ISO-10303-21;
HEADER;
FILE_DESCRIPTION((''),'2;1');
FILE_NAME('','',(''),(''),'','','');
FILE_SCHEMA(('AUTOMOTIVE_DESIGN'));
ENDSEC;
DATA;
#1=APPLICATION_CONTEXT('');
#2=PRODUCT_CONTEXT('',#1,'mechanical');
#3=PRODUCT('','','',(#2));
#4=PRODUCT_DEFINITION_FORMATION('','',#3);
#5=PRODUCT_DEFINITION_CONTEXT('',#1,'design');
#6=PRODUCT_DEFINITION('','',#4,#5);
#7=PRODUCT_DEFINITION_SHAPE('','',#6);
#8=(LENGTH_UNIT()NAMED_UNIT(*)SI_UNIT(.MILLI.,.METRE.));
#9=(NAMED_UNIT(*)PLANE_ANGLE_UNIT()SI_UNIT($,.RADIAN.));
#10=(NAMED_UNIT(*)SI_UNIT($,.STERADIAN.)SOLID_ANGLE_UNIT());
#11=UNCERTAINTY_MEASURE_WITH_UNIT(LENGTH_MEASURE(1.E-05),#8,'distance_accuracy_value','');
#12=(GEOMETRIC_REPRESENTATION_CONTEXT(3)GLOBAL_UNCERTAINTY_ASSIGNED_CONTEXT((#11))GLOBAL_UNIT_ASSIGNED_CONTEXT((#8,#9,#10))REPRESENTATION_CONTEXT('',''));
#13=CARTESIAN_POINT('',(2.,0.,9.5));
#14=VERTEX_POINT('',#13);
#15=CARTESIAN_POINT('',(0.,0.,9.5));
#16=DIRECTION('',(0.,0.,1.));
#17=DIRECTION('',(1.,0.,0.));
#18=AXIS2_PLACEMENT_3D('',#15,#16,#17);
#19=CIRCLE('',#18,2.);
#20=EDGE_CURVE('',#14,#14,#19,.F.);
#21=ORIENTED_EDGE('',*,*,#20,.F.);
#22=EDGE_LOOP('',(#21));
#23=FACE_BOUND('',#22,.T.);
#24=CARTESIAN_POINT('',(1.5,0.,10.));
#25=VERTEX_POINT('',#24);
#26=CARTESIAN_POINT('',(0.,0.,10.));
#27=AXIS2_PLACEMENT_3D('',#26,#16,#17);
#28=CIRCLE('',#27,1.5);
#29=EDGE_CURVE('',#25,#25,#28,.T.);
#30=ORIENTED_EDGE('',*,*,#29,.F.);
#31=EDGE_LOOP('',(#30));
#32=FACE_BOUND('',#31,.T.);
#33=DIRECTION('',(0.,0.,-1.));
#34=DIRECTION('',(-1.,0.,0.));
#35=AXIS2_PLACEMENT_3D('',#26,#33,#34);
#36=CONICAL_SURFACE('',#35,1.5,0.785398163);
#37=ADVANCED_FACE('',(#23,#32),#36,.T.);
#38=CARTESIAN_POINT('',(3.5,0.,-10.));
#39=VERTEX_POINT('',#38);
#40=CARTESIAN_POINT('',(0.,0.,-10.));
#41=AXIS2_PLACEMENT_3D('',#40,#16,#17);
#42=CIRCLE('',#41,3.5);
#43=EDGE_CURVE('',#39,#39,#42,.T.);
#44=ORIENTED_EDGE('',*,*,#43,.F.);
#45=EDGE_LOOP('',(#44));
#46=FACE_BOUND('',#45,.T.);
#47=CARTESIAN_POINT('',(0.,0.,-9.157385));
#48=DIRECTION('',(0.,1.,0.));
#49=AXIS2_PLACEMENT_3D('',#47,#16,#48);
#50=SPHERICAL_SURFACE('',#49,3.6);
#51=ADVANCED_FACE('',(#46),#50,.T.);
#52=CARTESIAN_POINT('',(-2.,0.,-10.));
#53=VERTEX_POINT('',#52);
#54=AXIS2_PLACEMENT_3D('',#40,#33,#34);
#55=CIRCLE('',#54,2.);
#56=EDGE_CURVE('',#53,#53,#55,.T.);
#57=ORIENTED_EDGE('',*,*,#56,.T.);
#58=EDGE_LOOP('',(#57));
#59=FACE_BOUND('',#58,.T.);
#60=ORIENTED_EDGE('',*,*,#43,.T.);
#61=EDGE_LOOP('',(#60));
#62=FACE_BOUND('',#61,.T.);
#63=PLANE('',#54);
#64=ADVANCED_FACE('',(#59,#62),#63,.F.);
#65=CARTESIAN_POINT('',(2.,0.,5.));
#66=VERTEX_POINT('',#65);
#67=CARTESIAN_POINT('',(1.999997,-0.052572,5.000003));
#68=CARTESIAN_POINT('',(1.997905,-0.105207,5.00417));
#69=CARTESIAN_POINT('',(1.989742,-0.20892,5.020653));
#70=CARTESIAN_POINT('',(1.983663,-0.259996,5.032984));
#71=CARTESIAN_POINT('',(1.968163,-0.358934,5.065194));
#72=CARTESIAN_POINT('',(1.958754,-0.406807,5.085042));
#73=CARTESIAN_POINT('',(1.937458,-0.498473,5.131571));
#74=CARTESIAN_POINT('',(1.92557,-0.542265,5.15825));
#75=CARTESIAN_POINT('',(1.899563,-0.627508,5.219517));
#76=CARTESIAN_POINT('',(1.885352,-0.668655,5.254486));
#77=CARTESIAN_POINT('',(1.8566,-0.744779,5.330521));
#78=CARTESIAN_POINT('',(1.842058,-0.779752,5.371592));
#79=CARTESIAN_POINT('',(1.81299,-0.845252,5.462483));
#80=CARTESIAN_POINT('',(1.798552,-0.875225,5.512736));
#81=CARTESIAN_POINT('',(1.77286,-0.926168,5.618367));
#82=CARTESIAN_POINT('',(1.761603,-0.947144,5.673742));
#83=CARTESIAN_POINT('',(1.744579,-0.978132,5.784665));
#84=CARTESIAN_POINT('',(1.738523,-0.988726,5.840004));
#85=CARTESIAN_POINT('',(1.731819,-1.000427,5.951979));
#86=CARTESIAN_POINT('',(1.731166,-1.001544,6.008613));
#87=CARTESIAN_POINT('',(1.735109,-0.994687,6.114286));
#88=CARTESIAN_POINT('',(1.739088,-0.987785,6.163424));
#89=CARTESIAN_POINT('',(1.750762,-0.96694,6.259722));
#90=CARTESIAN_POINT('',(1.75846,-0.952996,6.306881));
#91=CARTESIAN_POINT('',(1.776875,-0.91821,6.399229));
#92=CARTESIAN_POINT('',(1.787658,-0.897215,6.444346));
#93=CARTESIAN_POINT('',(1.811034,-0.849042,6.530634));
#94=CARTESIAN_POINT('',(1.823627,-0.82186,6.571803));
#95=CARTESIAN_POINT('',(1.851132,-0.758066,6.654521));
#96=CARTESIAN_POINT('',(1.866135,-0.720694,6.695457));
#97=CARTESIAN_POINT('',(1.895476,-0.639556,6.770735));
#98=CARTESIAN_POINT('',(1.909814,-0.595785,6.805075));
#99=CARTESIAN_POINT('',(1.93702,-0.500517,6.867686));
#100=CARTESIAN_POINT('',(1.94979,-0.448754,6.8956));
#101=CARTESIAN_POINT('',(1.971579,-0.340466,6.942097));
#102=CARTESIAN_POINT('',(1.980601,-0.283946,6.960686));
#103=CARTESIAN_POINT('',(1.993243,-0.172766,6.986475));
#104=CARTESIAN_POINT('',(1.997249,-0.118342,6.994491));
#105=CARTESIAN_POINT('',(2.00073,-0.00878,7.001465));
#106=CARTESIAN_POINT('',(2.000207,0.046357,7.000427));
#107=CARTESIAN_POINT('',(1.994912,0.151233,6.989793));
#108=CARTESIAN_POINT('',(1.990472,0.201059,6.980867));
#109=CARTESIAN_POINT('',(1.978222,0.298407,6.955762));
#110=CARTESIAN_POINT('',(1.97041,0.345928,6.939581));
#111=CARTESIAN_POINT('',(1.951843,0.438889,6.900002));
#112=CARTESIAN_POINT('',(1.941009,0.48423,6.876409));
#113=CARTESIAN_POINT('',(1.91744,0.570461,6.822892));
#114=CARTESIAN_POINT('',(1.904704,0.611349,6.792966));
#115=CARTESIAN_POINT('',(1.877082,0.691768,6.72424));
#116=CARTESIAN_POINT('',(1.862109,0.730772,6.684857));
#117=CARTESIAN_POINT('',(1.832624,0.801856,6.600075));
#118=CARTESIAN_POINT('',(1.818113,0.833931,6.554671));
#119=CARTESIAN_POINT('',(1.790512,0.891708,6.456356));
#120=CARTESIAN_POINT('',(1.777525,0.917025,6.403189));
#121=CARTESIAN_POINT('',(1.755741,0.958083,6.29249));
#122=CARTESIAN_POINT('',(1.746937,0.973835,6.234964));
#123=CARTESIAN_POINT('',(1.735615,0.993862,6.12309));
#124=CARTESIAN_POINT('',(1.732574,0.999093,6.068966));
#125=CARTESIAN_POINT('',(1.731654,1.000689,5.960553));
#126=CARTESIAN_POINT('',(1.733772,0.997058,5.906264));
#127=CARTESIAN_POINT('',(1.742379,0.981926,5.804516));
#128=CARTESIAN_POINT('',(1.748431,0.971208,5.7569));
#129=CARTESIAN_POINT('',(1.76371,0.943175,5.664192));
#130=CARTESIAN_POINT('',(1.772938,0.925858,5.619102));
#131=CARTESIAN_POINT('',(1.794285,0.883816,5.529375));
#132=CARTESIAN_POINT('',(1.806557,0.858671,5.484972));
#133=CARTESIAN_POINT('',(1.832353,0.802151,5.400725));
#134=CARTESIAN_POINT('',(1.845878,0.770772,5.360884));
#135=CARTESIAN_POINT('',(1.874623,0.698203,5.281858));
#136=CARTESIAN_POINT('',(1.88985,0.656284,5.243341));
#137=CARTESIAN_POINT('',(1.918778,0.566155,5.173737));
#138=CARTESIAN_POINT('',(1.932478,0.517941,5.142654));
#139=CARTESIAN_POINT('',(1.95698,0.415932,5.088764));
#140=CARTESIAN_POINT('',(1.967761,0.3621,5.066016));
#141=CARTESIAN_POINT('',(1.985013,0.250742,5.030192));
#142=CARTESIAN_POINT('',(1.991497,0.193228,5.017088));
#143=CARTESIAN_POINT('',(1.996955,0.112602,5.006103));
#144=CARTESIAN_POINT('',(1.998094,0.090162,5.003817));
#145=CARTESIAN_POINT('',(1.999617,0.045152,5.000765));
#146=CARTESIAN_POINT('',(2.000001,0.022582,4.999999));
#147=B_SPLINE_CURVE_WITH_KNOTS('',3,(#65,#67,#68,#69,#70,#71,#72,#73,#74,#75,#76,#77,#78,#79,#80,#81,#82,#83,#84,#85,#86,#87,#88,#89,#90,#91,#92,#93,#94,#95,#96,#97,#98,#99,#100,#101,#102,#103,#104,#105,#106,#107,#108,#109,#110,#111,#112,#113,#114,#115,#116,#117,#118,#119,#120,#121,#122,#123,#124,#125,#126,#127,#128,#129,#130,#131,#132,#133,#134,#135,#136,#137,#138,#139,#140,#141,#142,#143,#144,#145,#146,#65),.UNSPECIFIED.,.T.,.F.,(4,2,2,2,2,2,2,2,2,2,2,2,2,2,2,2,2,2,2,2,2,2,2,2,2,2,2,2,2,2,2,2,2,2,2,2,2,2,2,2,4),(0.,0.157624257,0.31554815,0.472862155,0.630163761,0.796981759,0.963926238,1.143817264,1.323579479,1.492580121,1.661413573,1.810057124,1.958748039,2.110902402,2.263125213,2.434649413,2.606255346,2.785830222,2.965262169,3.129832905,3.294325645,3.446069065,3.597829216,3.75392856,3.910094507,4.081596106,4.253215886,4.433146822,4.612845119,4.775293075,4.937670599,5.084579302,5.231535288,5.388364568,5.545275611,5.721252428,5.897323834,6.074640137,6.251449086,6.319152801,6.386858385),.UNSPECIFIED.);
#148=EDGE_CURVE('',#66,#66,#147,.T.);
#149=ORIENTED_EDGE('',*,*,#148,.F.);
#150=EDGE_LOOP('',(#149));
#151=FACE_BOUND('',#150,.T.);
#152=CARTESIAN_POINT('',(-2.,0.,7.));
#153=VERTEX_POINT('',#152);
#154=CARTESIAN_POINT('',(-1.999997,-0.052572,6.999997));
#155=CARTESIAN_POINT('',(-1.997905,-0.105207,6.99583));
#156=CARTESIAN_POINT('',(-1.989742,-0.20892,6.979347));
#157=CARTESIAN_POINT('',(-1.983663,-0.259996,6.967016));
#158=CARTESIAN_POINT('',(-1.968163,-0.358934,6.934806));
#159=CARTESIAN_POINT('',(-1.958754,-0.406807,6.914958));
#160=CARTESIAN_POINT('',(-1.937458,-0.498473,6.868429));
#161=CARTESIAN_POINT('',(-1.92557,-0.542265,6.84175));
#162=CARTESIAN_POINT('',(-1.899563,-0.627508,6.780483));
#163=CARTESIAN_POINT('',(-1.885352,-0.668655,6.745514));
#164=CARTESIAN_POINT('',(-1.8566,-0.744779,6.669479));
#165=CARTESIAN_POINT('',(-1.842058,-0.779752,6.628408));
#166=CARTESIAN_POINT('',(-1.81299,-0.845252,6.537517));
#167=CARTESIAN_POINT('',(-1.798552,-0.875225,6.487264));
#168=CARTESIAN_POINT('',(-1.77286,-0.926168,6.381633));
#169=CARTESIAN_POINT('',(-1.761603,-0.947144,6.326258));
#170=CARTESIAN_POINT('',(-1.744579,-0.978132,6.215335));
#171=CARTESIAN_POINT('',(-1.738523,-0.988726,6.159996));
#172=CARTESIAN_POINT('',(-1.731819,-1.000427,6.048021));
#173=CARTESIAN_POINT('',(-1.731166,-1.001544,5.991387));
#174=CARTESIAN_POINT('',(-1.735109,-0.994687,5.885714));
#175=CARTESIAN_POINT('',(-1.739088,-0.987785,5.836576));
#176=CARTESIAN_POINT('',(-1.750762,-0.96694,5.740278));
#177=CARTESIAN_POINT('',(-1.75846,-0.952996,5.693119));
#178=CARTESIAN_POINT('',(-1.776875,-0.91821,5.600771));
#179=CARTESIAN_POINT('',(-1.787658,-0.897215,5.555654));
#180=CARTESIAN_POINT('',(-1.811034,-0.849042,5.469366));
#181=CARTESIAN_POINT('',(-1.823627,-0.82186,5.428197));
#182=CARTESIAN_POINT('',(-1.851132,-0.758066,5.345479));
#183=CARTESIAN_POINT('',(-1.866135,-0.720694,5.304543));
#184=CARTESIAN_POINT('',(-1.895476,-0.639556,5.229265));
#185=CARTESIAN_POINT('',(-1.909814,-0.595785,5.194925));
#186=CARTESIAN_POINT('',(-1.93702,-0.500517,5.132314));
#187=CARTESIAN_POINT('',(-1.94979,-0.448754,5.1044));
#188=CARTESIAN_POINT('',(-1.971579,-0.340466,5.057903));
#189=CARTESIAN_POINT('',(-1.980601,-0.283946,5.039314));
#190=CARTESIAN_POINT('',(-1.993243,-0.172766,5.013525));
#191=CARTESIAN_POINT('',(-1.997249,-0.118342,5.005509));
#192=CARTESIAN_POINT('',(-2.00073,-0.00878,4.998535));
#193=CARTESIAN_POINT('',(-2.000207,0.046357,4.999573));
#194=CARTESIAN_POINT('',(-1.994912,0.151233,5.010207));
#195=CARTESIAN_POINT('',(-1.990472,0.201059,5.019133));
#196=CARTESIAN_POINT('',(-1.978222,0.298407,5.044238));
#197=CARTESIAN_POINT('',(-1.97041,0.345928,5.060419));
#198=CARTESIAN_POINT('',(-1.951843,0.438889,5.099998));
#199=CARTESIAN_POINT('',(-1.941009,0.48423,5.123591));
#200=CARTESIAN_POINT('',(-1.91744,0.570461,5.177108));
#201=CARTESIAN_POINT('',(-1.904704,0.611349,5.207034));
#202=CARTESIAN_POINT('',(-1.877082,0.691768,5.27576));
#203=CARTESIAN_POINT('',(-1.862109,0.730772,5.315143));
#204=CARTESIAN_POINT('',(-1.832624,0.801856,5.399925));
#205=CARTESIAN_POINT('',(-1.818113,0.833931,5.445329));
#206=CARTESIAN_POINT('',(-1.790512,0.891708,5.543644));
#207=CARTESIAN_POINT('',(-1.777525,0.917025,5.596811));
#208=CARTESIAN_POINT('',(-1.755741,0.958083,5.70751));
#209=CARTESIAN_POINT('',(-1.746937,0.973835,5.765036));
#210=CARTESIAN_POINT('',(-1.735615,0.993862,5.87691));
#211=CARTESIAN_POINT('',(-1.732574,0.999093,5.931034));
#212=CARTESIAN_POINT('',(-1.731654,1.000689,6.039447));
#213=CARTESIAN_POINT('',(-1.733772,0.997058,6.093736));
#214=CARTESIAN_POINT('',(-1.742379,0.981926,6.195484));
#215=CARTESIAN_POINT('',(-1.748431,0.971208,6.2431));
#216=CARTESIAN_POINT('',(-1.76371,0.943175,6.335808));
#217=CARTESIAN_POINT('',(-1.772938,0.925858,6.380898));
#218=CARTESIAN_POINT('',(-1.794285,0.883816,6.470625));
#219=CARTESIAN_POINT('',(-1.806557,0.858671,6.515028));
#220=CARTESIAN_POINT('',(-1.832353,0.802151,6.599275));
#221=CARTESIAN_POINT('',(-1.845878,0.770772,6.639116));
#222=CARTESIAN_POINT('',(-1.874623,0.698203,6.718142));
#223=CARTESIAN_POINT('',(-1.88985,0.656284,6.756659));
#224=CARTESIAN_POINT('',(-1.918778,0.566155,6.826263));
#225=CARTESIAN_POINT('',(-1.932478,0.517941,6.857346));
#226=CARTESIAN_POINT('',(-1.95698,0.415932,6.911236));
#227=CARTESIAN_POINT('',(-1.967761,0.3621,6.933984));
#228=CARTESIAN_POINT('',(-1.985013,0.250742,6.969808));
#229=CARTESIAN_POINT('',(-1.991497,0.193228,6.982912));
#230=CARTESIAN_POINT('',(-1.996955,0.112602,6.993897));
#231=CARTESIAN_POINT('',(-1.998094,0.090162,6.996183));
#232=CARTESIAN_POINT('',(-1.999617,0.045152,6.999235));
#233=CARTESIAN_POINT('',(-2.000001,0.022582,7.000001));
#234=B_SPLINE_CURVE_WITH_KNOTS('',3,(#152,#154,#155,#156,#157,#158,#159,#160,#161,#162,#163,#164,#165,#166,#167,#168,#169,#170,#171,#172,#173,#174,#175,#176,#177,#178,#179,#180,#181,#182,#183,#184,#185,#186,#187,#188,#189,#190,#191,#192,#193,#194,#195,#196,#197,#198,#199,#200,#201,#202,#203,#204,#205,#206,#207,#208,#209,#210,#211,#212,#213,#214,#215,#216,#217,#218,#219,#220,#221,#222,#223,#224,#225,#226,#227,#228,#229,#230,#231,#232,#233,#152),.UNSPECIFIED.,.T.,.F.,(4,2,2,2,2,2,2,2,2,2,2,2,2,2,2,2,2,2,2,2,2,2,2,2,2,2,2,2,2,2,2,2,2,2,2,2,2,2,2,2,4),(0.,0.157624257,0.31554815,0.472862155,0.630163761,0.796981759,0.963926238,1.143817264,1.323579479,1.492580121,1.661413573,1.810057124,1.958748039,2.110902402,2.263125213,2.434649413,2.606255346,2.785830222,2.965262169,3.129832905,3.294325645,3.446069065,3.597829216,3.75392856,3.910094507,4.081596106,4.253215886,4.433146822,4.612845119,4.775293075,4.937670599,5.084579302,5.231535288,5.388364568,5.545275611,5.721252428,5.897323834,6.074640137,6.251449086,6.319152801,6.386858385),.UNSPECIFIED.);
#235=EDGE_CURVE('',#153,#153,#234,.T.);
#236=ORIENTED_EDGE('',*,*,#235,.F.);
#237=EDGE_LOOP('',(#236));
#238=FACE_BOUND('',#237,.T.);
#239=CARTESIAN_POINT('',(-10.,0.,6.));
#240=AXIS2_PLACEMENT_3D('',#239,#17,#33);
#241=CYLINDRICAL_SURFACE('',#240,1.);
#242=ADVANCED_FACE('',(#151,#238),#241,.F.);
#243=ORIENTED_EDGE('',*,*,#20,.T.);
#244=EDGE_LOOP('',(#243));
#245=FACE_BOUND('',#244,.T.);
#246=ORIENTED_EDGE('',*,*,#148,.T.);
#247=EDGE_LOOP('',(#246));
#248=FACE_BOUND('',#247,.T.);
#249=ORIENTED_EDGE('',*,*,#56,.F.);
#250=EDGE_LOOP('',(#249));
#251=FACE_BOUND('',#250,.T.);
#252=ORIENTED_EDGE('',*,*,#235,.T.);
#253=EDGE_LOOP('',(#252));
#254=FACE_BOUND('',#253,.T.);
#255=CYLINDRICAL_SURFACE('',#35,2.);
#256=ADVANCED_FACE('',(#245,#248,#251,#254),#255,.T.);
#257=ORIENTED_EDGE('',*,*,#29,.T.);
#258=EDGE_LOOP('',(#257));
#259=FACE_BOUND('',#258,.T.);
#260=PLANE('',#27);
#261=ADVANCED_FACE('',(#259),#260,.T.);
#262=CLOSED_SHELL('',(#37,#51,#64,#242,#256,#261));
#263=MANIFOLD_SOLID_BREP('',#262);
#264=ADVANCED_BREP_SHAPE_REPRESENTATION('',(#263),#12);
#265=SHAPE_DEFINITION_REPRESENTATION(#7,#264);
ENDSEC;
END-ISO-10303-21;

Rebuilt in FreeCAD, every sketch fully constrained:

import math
import FreeCAD as App
import Part
import Sketcher
from FreeCAD import Vector


def edges_at(feature, points):
    """Names of the edges that pass closest to the given points."""
    edges = feature.Shape.Edges
    near = lambda p: min(range(len(edges)), key=lambda i: edges[i].distToShape(Part.Vertex(*p))[0])
    return sorted({f"Edge{near(p) + 1}" for p in points})

doc = App.newDocument("Part")
body = doc.addObject("PartDesign::Body", "Body")

sketch1 = doc.addObject("Sketcher::SketchObject", "Sketch")
body.addObject(sketch1)
sketch1.AttachmentSupport = (doc.XY_Plane, [""])
sketch1.MapMode = "FlatFace"
sketch1.addGeometry(Part.Circle(Vector(0, 0, 0), Vector(0, 0, 1), 2), False)
sketch1.addConstraint(Sketcher.Constraint("Coincident", 0, 3, -1, 1))
sketch1.addConstraint(Sketcher.Constraint("Diameter", 0, 4.0))
pad1 = doc.addObject("PartDesign::Pad", "Pad")
body.addObject(pad1)
pad1.Profile = sketch1
pad1.Length = 20
pad1.Midplane = True
doc.recompute()

chamfer = doc.addObject("PartDesign::Chamfer", "Chamfer")
body.addObject(chamfer)
chamfer.Base = (pad1, edges_at(pad1, [(-2, 0, 10)]))
chamfer.Size = 0.5

sketch2 = doc.addObject("Sketcher::SketchObject", "Sketch001")
body.addObject(sketch2)
sketch2.AttachmentSupport = (doc.YZ_Plane, [""])
sketch2.MapMode = "FlatFace"
sketch2.addGeometry(Part.LineSegment(Vector(3.5, -10, 0), Vector(0, -10, 0)), False)
sketch2.addGeometry(Part.LineSegment(Vector(0, -10, 0), Vector(0, -12.757385, 0)), False)
sketch2.addGeometry(Part.ArcOfCircle(Part.Circle(Vector(0, -9.157385, 0), Vector(0, 0, 1), 3.6), math.radians(-90), math.radians(-13.536203)), False)
sketch2.addConstraint(Sketcher.Constraint("Coincident", 0, 2, 1, 1))
sketch2.addConstraint(Sketcher.Constraint("Coincident", 1, 2, 2, 1))
sketch2.addConstraint(Sketcher.Constraint("Coincident", 2, 2, 0, 1))
sketch2.addConstraint(Sketcher.Constraint("Horizontal", 0))
sketch2.addConstraint(Sketcher.Constraint("Vertical", 1))
sketch2.addConstraint(Sketcher.Constraint("PointOnObject", 2, 3, -2))
sketch2.addConstraint(Sketcher.Constraint("PointOnObject", 0, 2, -2))
sketch2.addConstraint(Sketcher.Constraint("Radius", 2, 3.6))
sketch2.addConstraint(Sketcher.Constraint("DistanceX", 0, 2, 0, 1, 3.5))
sketch2.addConstraint(Sketcher.Constraint("DistanceY", 0, 2, -1, 1, 10.0))
revolution = doc.addObject("PartDesign::Revolution", "Revolution")
body.addObject(revolution)
revolution.Profile = sketch2
revolution.ReferenceAxis = (sketch2, ["V_Axis"])
revolution.Angle = 360

sketch3 = doc.addObject("Sketcher::SketchObject", "Sketch002")
body.addObject(sketch3)
sketch3.AttachmentSupport = (doc.YZ_Plane, [""])
sketch3.MapMode = "FlatFace"
sketch3.addGeometry(Part.Circle(Vector(0, 6, 0), Vector(0, 0, 1), 1), False)
sketch3.addConstraint(Sketcher.Constraint("PointOnObject", 0, 3, -2))
sketch3.addConstraint(Sketcher.Constraint("Diameter", 0, 2.0))
sketch3.addConstraint(Sketcher.Constraint("DistanceY", -1, 1, 0, 3, 6.0))
pocket1 = doc.addObject("PartDesign::Pocket", "Pocket")
body.addObject(pocket1)
pocket1.Profile = sketch3
pocket1.Length = 20
pocket1.Midplane = True

doc.recompute()
